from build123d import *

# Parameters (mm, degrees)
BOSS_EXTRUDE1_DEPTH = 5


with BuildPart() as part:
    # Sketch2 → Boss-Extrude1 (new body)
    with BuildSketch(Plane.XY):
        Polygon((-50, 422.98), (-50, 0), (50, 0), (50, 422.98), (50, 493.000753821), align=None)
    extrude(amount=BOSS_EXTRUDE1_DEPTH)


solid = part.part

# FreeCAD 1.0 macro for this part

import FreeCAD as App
import Part
import Sketcher
from FreeCAD import Vector
Q = App.Units.Quantity

doc = App.newDocument("Part")
params = doc.addObject("Spreadsheet::Sheet", "Params")
for row, (alias, value) in enumerate([
    ("sketch1_width", "100 mm"),
    ("sketch1_height", "422.98 mm"),
    ("pad1_length", "5 mm"),
], start=1):
    params.set(f"A{row}", alias)
    params.set(f"B{row}", "=" + value)
    params.setAlias(f"B{row}", alias)

body = doc.addObject("PartDesign::Body", "Body")

sketch1 = doc.addObject("Sketcher::SketchObject", "Sketch")
body.addObject(sketch1)
sketch1.AttachmentSupport = (doc.XY_Plane, [""])
sketch1.MapMode = "FlatFace"
sketch1.addGeometry([
    Part.LineSegment(Vector(-50, 423, 0), Vector(-50, 0, 0)),
    Part.LineSegment(Vector(-50, 0, 0), Vector(50, 0, 0)),
    Part.LineSegment(Vector(50, 0, 0), Vector(50, 493, 0)),
    Part.LineSegment(Vector(50, 493, 0), Vector(-50, 423, 0)),
], False)
sketch1.addConstraint([
    Sketcher.Constraint("Coincident", 0, 2, 1, 1),
    Sketcher.Constraint("Coincident", 1, 2, 2, 1),
    Sketcher.Constraint("Coincident", 2, 2, 3, 1),
    Sketcher.Constraint("Coincident", 3, 2, 0, 1),
    Sketcher.Constraint("Vertical", 0),
    Sketcher.Constraint("Horizontal", 1),
    Sketcher.Constraint("Vertical", 2),
    Sketcher.Constraint("Symmetric", 0, 2, 1, 2, -1, 1),
    Sketcher.Constraint("DistanceX", 1, 1, 1, 2, 100.0),
    Sketcher.Constraint("Angle", 3, Q("-145 deg")),
    Sketcher.Constraint("DistanceY", 0, 2, 0, 1, 422.98),
])
sketch1.setExpression("Constraints[8]", "Params.sketch1_width")
sketch1.setExpression("Constraints[10]", "Params.sketch1_height")
pad1 = doc.addObject("PartDesign::Pad", "Pad")
body.addObject(pad1)
pad1.Profile = sketch1
pad1.setExpression("Length", "Params.pad1_length")

doc.recompute()
